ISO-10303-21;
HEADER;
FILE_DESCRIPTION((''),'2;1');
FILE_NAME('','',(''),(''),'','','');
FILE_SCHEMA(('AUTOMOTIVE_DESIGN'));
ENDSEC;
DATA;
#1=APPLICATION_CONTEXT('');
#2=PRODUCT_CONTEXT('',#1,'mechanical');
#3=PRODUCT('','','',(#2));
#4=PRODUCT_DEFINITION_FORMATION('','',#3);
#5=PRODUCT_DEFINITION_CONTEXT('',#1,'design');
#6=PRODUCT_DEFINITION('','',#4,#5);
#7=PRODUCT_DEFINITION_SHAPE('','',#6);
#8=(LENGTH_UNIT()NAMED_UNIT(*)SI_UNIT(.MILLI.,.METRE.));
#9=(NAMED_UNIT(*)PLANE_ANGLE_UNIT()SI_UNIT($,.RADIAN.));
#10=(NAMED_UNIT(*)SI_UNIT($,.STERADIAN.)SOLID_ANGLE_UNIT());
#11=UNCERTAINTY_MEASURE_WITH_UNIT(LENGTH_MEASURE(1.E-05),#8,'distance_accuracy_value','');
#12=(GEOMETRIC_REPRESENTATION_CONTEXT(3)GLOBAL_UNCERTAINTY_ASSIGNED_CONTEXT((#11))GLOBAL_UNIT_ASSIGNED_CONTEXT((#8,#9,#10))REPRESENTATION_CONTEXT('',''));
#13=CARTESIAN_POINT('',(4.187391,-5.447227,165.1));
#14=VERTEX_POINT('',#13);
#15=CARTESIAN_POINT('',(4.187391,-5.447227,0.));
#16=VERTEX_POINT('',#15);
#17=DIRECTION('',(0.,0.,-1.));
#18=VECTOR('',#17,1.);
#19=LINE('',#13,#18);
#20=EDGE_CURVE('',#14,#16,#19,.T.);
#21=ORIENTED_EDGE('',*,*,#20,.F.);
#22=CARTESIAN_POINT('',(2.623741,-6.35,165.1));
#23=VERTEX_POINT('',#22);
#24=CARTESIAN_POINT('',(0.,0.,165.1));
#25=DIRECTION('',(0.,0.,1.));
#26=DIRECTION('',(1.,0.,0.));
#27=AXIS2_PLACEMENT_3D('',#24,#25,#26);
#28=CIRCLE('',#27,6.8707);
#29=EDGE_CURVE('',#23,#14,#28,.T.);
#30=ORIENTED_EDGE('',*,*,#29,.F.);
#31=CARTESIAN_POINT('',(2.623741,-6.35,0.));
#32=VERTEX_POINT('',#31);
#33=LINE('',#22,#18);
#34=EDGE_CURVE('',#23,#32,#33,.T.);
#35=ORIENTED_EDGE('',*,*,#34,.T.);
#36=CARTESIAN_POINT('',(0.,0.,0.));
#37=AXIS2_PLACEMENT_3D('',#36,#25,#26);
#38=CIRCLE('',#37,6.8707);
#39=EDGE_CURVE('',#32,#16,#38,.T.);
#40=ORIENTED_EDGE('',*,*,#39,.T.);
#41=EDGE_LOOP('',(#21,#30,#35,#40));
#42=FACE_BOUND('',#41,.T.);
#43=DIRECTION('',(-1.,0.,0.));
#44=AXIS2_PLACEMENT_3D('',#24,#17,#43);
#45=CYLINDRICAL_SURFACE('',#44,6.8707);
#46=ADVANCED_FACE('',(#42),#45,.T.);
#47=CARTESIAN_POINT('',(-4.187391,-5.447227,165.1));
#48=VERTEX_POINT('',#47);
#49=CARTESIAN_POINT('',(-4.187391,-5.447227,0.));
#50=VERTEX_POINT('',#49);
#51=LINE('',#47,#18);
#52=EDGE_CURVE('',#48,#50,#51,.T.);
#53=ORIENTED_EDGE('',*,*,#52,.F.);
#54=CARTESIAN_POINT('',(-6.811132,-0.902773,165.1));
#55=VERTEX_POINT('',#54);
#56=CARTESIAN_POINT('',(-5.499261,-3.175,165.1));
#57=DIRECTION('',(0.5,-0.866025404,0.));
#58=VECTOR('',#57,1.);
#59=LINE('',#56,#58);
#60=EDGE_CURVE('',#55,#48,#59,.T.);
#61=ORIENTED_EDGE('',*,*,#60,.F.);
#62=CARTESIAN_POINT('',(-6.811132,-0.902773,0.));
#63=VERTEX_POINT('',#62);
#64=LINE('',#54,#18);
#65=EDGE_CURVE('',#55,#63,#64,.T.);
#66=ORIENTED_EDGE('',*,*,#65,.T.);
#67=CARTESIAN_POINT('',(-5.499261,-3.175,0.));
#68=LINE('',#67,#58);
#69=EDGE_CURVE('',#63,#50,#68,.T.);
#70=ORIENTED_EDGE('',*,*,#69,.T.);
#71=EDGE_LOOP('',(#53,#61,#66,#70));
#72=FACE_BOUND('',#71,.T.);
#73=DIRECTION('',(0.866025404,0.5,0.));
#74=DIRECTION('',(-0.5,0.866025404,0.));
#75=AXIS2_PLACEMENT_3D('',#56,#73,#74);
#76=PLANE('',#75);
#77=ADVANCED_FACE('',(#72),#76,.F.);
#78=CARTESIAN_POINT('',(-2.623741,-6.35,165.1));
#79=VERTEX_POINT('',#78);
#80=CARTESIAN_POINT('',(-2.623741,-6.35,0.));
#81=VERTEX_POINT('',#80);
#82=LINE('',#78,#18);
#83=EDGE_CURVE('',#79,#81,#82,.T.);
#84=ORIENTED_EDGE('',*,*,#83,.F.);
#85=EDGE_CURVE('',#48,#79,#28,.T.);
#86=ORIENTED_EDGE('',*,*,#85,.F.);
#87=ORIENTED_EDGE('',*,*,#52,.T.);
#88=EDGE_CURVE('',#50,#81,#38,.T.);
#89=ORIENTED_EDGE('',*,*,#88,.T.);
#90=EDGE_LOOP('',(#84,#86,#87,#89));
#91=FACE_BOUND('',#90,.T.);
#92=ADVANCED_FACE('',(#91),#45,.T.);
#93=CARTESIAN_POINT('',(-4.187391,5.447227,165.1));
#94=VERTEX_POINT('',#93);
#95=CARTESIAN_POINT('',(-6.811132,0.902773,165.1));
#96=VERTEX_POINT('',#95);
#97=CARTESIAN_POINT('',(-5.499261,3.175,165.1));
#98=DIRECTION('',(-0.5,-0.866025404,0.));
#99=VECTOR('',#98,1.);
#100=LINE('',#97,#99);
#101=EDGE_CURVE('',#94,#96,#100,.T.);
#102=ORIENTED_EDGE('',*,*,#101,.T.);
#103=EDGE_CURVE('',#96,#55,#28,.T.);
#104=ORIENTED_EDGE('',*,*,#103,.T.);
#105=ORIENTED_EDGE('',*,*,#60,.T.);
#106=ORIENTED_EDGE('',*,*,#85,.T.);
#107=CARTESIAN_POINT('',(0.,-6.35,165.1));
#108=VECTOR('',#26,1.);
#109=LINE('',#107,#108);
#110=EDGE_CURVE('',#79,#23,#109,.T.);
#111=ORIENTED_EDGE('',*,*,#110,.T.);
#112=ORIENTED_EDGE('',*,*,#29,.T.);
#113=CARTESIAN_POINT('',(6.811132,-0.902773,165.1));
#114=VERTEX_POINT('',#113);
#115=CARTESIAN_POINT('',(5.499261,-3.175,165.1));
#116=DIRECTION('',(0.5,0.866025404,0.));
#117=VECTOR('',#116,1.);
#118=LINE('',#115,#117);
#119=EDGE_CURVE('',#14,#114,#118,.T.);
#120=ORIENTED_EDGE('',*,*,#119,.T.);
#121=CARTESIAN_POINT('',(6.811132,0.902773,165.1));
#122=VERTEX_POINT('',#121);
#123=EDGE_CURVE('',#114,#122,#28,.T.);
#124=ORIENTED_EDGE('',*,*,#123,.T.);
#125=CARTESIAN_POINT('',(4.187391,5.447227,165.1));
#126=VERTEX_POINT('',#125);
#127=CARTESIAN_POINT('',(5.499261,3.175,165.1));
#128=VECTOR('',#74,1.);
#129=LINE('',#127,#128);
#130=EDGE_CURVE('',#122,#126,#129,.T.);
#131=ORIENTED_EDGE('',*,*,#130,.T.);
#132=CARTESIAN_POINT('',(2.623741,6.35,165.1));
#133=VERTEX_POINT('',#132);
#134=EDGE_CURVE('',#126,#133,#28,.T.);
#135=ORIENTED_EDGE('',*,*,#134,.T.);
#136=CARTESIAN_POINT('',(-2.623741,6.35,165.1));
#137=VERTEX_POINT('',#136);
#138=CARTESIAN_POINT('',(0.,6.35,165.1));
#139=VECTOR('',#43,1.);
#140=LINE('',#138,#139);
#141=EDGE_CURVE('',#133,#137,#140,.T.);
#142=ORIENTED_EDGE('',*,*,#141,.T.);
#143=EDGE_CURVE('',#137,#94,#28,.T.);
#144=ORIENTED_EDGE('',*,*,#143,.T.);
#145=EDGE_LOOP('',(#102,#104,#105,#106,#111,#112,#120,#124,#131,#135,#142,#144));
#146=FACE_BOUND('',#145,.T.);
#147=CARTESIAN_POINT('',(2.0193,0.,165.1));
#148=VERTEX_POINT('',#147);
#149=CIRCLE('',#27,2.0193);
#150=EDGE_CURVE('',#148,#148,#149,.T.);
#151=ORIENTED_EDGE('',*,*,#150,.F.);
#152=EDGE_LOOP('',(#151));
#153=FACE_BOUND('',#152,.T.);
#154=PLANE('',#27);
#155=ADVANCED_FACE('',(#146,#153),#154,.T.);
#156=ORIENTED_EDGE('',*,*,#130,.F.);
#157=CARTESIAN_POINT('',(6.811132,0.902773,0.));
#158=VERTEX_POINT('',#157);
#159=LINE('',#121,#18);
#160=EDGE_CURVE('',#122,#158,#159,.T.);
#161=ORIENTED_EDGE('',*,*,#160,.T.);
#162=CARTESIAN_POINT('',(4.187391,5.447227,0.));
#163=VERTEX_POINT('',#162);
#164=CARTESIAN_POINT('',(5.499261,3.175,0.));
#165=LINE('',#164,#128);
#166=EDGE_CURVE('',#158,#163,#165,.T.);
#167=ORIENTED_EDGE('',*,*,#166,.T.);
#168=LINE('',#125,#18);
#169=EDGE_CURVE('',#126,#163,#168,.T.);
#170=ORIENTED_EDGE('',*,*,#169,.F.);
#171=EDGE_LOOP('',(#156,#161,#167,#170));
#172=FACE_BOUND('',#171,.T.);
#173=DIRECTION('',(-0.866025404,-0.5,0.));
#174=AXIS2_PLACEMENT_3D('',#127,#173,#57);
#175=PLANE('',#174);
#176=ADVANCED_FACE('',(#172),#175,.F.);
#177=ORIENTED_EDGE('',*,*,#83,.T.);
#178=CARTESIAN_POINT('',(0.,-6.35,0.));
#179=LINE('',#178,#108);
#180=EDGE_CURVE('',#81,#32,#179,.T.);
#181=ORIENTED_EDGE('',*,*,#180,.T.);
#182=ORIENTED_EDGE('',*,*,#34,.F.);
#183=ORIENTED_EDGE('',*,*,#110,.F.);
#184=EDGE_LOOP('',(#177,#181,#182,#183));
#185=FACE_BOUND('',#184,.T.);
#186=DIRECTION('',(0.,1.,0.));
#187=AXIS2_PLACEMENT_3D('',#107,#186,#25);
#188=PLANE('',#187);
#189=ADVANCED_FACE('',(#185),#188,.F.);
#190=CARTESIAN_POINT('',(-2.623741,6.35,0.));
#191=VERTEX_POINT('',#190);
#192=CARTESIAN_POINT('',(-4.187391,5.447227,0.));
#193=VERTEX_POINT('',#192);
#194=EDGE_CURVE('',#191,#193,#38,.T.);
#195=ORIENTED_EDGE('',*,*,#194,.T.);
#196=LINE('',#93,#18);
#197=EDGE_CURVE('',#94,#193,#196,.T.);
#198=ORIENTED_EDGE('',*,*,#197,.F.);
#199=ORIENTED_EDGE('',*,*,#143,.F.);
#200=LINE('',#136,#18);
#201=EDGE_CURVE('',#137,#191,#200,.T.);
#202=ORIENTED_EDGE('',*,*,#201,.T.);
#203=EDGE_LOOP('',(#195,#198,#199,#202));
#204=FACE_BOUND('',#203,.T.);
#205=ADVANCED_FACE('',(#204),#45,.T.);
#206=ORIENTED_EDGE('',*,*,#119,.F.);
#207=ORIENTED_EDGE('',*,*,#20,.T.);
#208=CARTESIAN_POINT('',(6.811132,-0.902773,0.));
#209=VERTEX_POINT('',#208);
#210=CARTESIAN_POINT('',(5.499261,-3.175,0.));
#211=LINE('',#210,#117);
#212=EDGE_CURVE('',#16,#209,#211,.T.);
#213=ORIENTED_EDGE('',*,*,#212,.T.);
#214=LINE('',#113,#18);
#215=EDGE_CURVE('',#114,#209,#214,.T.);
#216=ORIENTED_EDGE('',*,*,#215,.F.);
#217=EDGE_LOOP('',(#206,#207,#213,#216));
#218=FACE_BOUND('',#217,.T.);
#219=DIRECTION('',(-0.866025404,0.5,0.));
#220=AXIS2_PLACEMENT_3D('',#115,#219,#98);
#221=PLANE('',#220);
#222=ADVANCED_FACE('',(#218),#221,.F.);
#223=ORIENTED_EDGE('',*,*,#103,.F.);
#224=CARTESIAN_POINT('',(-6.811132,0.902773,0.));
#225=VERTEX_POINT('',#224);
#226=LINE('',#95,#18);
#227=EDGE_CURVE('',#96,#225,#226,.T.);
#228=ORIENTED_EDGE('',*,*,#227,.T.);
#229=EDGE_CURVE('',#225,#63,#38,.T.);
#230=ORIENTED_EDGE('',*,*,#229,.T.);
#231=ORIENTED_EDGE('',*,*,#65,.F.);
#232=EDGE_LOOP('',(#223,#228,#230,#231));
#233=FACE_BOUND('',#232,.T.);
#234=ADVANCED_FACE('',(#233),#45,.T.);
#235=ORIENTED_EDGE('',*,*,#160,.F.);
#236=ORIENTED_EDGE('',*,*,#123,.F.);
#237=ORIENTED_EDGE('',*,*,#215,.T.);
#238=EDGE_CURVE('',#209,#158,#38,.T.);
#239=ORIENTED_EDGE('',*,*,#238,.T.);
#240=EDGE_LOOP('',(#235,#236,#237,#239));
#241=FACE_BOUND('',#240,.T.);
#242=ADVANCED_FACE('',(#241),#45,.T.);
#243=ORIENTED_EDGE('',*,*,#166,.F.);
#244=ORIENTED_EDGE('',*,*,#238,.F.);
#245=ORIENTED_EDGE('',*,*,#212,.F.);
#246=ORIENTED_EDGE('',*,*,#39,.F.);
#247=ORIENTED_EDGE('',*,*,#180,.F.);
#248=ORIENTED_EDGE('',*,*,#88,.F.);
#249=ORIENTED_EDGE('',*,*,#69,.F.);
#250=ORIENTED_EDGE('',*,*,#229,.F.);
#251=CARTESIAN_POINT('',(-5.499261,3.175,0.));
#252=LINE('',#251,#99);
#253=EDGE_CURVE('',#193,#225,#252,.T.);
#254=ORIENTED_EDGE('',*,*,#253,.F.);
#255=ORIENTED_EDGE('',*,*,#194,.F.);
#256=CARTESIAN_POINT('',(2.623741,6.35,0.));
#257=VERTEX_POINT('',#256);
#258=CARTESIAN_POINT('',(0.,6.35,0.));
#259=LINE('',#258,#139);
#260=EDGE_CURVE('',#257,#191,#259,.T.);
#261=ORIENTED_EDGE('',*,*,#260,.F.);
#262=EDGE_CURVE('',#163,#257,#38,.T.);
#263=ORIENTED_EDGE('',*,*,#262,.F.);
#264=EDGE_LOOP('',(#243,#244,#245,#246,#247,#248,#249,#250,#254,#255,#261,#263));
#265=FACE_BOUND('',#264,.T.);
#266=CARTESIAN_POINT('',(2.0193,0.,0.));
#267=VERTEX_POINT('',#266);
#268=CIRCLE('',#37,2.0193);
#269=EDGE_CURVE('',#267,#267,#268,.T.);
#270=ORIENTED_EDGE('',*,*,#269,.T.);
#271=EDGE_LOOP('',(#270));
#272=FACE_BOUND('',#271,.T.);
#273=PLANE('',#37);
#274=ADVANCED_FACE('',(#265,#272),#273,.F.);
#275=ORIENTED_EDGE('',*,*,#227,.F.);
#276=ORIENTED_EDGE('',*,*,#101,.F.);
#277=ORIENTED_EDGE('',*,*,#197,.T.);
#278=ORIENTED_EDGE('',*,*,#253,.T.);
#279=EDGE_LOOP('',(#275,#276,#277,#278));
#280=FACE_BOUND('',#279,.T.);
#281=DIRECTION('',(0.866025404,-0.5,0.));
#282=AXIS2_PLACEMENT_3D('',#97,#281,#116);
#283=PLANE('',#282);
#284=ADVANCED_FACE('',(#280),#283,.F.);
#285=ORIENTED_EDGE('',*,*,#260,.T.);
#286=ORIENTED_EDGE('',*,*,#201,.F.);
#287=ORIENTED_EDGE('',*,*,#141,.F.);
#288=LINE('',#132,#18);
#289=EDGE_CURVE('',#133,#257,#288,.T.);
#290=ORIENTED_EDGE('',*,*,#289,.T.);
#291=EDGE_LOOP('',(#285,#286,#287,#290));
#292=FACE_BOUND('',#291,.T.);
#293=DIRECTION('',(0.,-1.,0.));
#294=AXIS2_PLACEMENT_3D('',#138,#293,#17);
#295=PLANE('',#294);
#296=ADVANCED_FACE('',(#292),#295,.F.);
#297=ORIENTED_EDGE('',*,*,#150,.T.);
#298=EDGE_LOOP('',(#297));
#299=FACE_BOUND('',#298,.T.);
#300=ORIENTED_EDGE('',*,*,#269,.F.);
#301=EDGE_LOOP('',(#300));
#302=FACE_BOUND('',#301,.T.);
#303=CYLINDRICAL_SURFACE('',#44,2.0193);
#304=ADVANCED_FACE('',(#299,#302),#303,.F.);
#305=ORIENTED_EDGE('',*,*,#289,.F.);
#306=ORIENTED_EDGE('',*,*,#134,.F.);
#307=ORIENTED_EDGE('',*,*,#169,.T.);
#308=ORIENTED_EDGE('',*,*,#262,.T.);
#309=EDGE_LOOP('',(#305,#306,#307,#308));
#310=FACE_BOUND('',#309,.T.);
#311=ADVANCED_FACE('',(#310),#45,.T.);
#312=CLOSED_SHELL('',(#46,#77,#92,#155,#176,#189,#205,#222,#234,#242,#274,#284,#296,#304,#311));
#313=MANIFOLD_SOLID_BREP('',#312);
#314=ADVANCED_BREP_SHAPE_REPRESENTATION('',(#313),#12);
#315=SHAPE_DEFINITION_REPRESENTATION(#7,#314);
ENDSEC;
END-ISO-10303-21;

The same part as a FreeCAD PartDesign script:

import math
import FreeCAD as App
import Part
import Sketcher
from FreeCAD import Vector
Q = App.Units.Quantity

doc = App.newDocument("Part")
body = doc.addObject("PartDesign::Body", "Body")

# Sketch on XY plane
sketch1 = body.newObject("Sketcher::SketchObject", "Sketch")
sketch1.AttachmentSupport = (doc.getObject("XY_Plane"), [""])
sketch1.MapMode = "FlatFace"
sketch1.addGeometry([
    Part.ArcOfCircle(Part.Circle(Vector(0, 0, 0), Vector(0, 0, 1), 6.8707), math.radians(112.449807), math.radians(127.550193)),  # 0
    Part.LineSegment(Vector(-4.187391, 5.447227, 0), Vector(-6.811132, 0.902773, 0)),  # 1
    Part.ArcOfCircle(Part.Circle(Vector(0, 0, 0), Vector(0, 0, 1), 6.8707), math.radians(172.449808), math.radians(187.550192)),  # 2
    Part.LineSegment(Vector(-6.811132, -0.902773, 0), Vector(-4.187391, -5.447227, 0)),  # 3
    Part.ArcOfCircle(Part.Circle(Vector(0, 0, 0), Vector(0, 0, 1), 6.8707), math.radians(-127.550193), math.radians(-112.449807)),  # 4
    Part.LineSegment(Vector(-2.623741, -6.35, 0), Vector(2.623741, -6.35, 0)),  # 5
    Part.ArcOfCircle(Part.Circle(Vector(0, 0, 0), Vector(0, 0, 1), 6.8707), math.radians(-67.550193), math.radians(-52.449807)),  # 6
    Part.LineSegment(Vector(4.187391, -5.447227, 0), Vector(6.811132, -0.902773, 0)),  # 7
    Part.ArcOfCircle(Part.Circle(Vector(0, 0, 0), Vector(0, 0, 1), 6.8707), math.radians(-7.550192), math.radians(7.550192)),  # 8
    Part.LineSegment(Vector(6.811132, 0.902773, 0), Vector(4.187391, 5.447227, 0)),  # 9
    Part.ArcOfCircle(Part.Circle(Vector(0, 0, 0), Vector(0, 0, 1), 6.8707), math.radians(52.449807), math.radians(67.550193)),  # 10
    Part.LineSegment(Vector(2.623741, 6.35, 0), Vector(-2.623741, 6.35, 0)),  # 11
    Part.Circle(Vector(0, 0, 0), Vector(0, 0, 1), 2.0193),  # 12
], False)
sketch1.addConstraint([
    Sketcher.Constraint("Coincident", 0, 2, 1, 1),
    Sketcher.Constraint("Coincident", 1, 2, 2, 1),
    Sketcher.Constraint("Coincident", 2, 2, 3, 1),
    Sketcher.Constraint("Coincident", 3, 2, 4, 1),
    Sketcher.Constraint("Coincident", 4, 2, 5, 1),
    Sketcher.Constraint("Coincident", 5, 2, 6, 1),
    Sketcher.Constraint("Coincident", 6, 2, 7, 1),
    Sketcher.Constraint("Coincident", 7, 2, 8, 1),
    Sketcher.Constraint("Coincident", 8, 2, 9, 1),
    Sketcher.Constraint("Coincident", 9, 2, 10, 1),
    Sketcher.Constraint("Coincident", 10, 2, 11, 1),
    Sketcher.Constraint("Coincident", 11, 2, 0, 1),
    Sketcher.Constraint("Horizontal", 5),
    Sketcher.Constraint("Horizontal", 11),
    Sketcher.Constraint("Coincident", 0, 3, -1, 1),
    Sketcher.Constraint("Coincident", 2, 3, -1, 1),
    Sketcher.Constraint("Coincident", 4, 3, -1, 1),
    Sketcher.Constraint("Coincident", 6, 3, -1, 1),
    Sketcher.Constraint("Coincident", 8, 3, -1, 1),
    Sketcher.Constraint("Coincident", 10, 3, -1, 1),
    Sketcher.Constraint("Coincident", 12, 3, -1, 1),
    Sketcher.Constraint("Equal", 0, 2),
    Sketcher.Constraint("Equal", 2, 4),
    Sketcher.Constraint("Equal", 4, 6),
    Sketcher.Constraint("Equal", 6, 8),
    Sketcher.Constraint("Equal", 8, 10),
    Sketcher.Constraint("Parallel", 1, 7),
    Sketcher.Constraint("Parallel", 3, 9),
    Sketcher.Constraint("Horizontal", 3, 2, 6, 2),
    Sketcher.Constraint("Horizontal", 2, 2, 7, 2),
    Sketcher.Constraint("Horizontal", 1, 2, 8, 2),
    Sketcher.Constraint("Vertical", 1, 2, 2, 2),
    Sketcher.Constraint("Vertical", 5, 2, 10, 2),
    Sketcher.Constraint("Diameter", 12, Q("0.159 in")),
    Sketcher.Constraint("Angle", 1, Q("-120 deg")),
    Sketcher.Constraint("Radius", 0, Q("0.2705 in")),
    Sketcher.Constraint("DistanceY", 4, 2, -1, 1, Q("0.25 in")),
    Sketcher.Constraint("DistanceX", 0, 2, -1, 1, 4.187391),
])
pad1 = body.newObject("PartDesign::Pad", "Pad")
pad1.Profile = sketch1
pad1.Length = Q("6.5 in")

doc.recompute()
